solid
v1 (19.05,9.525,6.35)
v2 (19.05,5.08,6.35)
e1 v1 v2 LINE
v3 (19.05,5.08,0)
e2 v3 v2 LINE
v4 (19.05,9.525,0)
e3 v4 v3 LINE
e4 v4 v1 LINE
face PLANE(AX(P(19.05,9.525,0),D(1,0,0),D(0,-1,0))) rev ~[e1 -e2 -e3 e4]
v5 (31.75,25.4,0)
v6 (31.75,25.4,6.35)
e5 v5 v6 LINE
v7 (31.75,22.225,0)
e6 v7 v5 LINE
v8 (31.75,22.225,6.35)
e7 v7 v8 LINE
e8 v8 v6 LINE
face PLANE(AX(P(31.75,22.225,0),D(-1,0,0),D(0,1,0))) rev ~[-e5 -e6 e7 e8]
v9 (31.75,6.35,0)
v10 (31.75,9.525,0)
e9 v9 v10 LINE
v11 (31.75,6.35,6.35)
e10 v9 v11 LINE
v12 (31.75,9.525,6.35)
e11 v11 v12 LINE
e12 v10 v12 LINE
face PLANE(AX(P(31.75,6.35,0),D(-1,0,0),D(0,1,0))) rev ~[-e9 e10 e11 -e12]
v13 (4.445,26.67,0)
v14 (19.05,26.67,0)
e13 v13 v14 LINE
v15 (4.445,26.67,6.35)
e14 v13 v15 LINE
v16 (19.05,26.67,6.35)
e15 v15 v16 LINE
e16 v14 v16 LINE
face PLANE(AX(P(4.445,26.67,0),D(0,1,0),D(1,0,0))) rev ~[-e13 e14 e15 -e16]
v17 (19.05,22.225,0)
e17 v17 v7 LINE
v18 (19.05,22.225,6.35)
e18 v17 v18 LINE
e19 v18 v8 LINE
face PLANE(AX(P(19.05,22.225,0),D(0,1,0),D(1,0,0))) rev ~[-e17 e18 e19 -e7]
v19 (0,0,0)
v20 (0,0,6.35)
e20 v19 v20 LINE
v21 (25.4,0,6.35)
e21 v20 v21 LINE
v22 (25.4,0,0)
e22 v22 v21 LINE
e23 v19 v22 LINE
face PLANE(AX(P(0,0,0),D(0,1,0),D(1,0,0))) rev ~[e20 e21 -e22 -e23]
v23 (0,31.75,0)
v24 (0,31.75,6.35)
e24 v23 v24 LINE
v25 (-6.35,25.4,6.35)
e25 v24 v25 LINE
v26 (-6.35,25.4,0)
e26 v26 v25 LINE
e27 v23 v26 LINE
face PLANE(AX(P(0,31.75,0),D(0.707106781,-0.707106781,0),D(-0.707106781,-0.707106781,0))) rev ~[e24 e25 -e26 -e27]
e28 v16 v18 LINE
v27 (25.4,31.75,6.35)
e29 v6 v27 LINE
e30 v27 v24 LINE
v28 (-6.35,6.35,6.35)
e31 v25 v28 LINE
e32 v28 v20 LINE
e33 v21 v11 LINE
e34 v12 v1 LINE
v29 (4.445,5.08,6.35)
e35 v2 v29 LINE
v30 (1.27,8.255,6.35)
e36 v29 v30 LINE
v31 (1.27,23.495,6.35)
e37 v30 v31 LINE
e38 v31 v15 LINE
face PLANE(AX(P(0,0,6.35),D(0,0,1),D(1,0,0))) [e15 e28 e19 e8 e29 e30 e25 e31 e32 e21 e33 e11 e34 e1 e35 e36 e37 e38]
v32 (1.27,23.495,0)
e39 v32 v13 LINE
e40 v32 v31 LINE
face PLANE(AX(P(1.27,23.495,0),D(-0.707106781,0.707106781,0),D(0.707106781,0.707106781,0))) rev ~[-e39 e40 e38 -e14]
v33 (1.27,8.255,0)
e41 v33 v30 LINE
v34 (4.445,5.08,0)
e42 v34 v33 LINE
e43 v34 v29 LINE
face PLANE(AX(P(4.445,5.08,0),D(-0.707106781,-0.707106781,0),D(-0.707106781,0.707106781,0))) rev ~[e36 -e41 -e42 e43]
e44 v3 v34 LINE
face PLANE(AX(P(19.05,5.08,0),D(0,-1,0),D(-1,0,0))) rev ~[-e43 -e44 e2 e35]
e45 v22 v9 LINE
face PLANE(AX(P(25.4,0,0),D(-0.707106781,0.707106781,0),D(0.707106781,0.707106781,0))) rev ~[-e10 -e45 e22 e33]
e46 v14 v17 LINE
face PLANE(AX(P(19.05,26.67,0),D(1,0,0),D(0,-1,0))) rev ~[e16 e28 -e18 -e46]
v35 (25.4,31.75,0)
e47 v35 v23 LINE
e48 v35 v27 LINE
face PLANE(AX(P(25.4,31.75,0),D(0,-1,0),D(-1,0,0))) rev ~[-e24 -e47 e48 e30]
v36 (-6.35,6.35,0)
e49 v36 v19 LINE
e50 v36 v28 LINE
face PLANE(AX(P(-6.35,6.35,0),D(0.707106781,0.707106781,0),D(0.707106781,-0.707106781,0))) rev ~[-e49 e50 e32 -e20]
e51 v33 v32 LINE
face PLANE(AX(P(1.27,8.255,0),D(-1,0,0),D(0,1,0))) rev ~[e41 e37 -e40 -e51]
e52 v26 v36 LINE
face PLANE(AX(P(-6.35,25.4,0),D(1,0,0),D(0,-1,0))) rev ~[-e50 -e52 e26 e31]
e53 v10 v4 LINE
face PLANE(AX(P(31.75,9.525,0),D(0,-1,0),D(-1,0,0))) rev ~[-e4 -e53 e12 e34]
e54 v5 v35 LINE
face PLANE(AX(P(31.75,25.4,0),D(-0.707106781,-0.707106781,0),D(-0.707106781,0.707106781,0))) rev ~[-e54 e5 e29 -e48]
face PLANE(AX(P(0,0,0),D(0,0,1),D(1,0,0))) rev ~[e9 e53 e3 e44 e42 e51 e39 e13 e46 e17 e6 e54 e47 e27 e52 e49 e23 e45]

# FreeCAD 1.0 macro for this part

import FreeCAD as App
import Part
import Sketcher
Q = App.Units.Quantity


def add_polygon(sketch, points):
    """Adds a closed chain of lines whose ends are joined by coincident constraints."""
    first, n = sketch.GeometryCount, len(points)
    for a, b in zip(points, points[1:] + points[:1]):
        sketch.addGeometry(Part.LineSegment(App.Vector(*a, 0), App.Vector(*b, 0)), False)
    for i in range(n):
        sketch.addConstraint(Sketcher.Constraint("Coincident", first + i, 2, first + (i + 1) % n, 1))

doc = App.newDocument("Part")
body = doc.addObject("PartDesign::Body", "Body")

# Sketch on XY plane
sketch1 = body.newObject("Sketcher::SketchObject", "Sketch")
sketch1.AttachmentSupport = (doc.getObject("XY_Plane"), [""])
sketch1.MapMode = "FlatFace"
add_polygon(sketch1, [(-6.3, 6.3), (0, 0), (25.4, 0), (31.8, 6.3), (31.8, 9.5), (19.1, 9.5), (19.1, 5.1), (4.4, 5.1), (1.3, 8.3), (1.3, 23.5), (4.4, 26.7), (19.1, 26.7), (19.1, 22.2), (31.8, 22.2), (31.8, 25.4), (25.4, 31.8), (0, 31.8), (-6.3, 25.4)])  # lines 0-17
sketch1.addConstraint([
    Sketcher.Constraint("Horizontal", 1),
    Sketcher.Constraint("Vertical", 3),
    Sketcher.Constraint("Horizontal", 4),
    Sketcher.Constraint("Vertical", 5),
    Sketcher.Constraint("Horizontal", 6),
    Sketcher.Constraint("Vertical", 8),
    Sketcher.Constraint("Horizontal", 10),
    Sketcher.Constraint("Vertical", 11),
    Sketcher.Constraint("Horizontal", 12),
    Sketcher.Constraint("Vertical", 13),
    Sketcher.Constraint("Horizontal", 15),
    Sketcher.Constraint("Vertical", 17),
    Sketcher.Constraint("Coincident", 0, 2, -1, 1),
    Sketcher.Constraint("PointOnObject", 15, 2, -2),
    Sketcher.Constraint("Perpendicular", 0, 2),
    Sketcher.Constraint("Perpendicular", 2, 7),
    Sketcher.Constraint("Perpendicular", 7, 9),
    Sketcher.Constraint("Perpendicular", 9, 14),
    Sketcher.Constraint("Perpendicular", 14, 16),
    Sketcher.Constraint("Horizontal", 13, 2, 16, 2),
    Sketcher.Constraint("Horizontal", 2, 2, 17, 2),
    Sketcher.Constraint("Vertical", 6, 2, 9, 2),
    Sketcher.Constraint("Vertical", 5, 2, 10, 2),
    Sketcher.Constraint("Vertical", 3, 2, 12, 2),
    Sketcher.Constraint("Vertical", 1, 2, 14, 2),
    Sketcher.Constraint("Equal", 5, 11),
    Sketcher.Constraint("Equal", 3, 13),
    Sketcher.Constraint("DistanceX", 4, 2, 4, 1, Q("0.5 in")),
    Sketcher.Constraint("DistanceY", -1, 1, 5, 2, Q("0.2 in")),
    Sketcher.Constraint("DistanceY", 4, 2, 11, 2, Q("0.5 in")),
    Sketcher.Constraint("DistanceX", 16, 2, 8, 2, Q("0.3 in")),
    Sketcher.Constraint("DistanceX", 1, 1, 1, 2, Q("1 in")),
    Sketcher.Constraint("DistanceY", 3, 1, 3, 2, Q("0.125 in")),
    Sketcher.Constraint("DistanceX", -1, 1, 2, 2, Q("1.25 in")),
    Sketcher.Constraint("DistanceY", 8, 1, 8, 2, Q("0.6 in")),
])
pad1 = body.newObject("PartDesign::Pad", "Pad")
pad1.Profile = sketch1
pad1.Length = Q("0.25 in")

doc.recompute()
